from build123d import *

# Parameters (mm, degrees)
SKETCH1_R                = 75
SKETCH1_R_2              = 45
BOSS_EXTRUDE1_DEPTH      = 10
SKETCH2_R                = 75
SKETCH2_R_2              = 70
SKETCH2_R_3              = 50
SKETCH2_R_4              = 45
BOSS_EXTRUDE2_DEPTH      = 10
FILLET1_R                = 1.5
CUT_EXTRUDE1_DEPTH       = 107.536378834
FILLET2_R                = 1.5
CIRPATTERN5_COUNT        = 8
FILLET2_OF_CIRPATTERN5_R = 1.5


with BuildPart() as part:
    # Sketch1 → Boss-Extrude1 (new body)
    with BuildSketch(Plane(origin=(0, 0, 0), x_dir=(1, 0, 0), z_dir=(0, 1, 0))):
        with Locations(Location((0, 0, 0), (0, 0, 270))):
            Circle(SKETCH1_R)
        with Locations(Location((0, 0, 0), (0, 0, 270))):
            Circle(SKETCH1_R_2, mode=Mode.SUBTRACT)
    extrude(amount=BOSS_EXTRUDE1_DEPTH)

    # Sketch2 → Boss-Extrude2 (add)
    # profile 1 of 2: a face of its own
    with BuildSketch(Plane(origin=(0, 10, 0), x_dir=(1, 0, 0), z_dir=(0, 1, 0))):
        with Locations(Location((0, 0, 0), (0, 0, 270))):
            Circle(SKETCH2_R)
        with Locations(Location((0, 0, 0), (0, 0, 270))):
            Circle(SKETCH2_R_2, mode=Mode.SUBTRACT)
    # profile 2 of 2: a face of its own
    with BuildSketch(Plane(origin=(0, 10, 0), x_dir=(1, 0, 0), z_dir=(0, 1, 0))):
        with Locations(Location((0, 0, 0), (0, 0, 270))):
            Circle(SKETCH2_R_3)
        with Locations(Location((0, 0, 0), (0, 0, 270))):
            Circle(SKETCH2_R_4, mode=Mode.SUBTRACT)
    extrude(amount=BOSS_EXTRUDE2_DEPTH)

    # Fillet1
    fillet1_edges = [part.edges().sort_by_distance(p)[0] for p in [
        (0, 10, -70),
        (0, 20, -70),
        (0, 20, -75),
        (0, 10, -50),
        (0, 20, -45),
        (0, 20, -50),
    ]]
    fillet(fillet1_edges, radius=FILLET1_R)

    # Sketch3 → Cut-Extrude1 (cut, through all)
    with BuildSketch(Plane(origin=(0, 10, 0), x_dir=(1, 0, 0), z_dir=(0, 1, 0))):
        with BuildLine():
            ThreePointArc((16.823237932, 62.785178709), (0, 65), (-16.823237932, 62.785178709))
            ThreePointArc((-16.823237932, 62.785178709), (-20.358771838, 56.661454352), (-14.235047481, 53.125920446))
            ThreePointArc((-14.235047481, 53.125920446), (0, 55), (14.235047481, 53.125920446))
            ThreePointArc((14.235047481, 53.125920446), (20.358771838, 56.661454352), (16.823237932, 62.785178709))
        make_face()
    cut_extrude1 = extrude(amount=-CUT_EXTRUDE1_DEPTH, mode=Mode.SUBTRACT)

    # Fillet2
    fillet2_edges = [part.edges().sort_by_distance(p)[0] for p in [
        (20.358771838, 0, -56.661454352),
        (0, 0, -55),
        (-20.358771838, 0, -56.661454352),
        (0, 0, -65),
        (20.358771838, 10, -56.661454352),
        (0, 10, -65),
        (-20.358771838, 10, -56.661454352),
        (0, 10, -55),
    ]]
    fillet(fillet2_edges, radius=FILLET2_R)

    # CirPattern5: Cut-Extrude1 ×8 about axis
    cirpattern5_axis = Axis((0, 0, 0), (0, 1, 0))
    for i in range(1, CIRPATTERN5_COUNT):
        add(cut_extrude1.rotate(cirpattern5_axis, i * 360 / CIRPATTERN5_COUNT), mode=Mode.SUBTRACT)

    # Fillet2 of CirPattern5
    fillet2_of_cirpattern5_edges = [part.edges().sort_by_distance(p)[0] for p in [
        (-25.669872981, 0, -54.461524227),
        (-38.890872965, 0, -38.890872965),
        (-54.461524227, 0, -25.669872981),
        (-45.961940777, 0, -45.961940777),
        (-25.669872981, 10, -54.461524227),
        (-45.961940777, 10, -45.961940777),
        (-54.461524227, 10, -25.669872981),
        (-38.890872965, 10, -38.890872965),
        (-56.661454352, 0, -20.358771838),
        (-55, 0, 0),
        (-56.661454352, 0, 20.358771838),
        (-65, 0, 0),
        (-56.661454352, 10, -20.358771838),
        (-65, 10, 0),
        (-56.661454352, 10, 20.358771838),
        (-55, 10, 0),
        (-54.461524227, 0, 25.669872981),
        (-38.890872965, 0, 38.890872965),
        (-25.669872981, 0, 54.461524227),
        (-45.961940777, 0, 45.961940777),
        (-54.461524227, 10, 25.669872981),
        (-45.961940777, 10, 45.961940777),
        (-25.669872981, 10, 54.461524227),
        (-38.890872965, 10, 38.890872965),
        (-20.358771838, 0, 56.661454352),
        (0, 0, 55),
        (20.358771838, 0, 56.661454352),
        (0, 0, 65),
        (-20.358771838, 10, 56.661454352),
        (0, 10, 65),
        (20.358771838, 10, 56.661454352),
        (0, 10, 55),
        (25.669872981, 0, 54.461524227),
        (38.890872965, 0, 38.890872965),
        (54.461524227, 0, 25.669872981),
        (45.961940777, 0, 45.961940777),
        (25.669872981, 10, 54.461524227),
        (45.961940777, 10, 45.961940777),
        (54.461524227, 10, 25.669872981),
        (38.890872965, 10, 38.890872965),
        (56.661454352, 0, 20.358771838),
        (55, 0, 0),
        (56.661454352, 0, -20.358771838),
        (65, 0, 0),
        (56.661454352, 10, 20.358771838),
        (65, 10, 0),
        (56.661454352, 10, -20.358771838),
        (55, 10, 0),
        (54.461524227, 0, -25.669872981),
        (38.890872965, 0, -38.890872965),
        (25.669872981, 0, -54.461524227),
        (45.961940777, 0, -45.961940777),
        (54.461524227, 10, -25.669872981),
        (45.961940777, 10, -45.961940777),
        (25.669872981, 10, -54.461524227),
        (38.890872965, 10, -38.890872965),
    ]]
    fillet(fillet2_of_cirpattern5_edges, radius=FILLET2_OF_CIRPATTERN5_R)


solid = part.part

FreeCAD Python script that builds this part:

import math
import FreeCAD as App
import Part
import Sketcher
Q = App.Units.Quantity


def edges_at(feature, points):
    """Names of the edges that pass closest to the given points."""
    edges = feature.Shape.Edges
    near = lambda p: min(range(len(edges)), key=lambda i: edges[i].distToShape(Part.Vertex(*p))[0])
    return sorted({f"Edge{near(p) + 1}" for p in points})

doc = App.newDocument("Part")
body = doc.addObject("PartDesign::Body", "Body")

# Sketch on XZ plane
sketch1 = body.newObject("Sketcher::SketchObject", "Sketch")
sketch1.AttachmentSupport = (doc.getObject("XZ_Plane"), [""])
sketch1.MapMode = "FlatFace"
sketch1.addGeometry(Part.Circle(App.Vector(0, 0, 0), App.Vector(0, 0, 1), 75), False)
sketch1.addGeometry(Part.Circle(App.Vector(0, 0, 0), App.Vector(0, 0, 1), 45), False)
sketch1.addConstraint(Sketcher.Constraint("Coincident", 0, 3, -1, 1))
sketch1.addConstraint(Sketcher.Constraint("Coincident", 1, 3, -1, 1))
sketch1.addConstraint(Sketcher.Constraint("Diameter", 0, Q("150 mm")))
sketch1.addConstraint(Sketcher.Constraint("Diameter", 1, Q("90 mm")))
pad1 = body.newObject("PartDesign::Pad", "Pad")
pad1.Profile = sketch1
pad1.Length = 10
pad1.Reversed = True

# Sketch on XZ plane
sketch2 = body.newObject("Sketcher::SketchObject", "Sketch001")
sketch2.AttachmentSupport = (doc.getObject("XZ_Plane"), [""])
sketch2.MapMode = "FlatFace"
sketch2.AttachmentOffset = App.Placement(App.Vector(0, 0, -10), App.Rotation())
sketch2.addGeometry(Part.Circle(App.Vector(0, 0, 0), App.Vector(0, 0, 1), 75), False)
sketch2.addGeometry(Part.Circle(App.Vector(0, 0, 0), App.Vector(0, 0, 1), 70), False)
sketch2.addGeometry(Part.Circle(App.Vector(0, 0, 0), App.Vector(0, 0, 1), 50), False)
sketch2.addGeometry(Part.Circle(App.Vector(0, 0, 0), App.Vector(0, 0, 1), 45), False)
sketch2.addConstraint(Sketcher.Constraint("Coincident", 0, 3, -1, 1))
sketch2.addConstraint(Sketcher.Constraint("Coincident", 1, 3, -1, 1))
sketch2.addConstraint(Sketcher.Constraint("Coincident", 2, 3, -1, 1))
sketch2.addConstraint(Sketcher.Constraint("Coincident", 3, 3, -1, 1))
sketch2.addConstraint(Sketcher.Constraint("Diameter", 0, Q("150 mm")))
sketch2.addConstraint(Sketcher.Constraint("Diameter", 1, Q("140 mm")))
sketch2.addConstraint(Sketcher.Constraint("Diameter", 2, Q("100 mm")))
sketch2.addConstraint(Sketcher.Constraint("Diameter", 3, Q("90 mm")))
pad2 = body.newObject("PartDesign::Pad", "Pad001")
pad2.Profile = sketch2
pad2.Length = 10
pad2.Reversed = True
doc.recompute()

fillet = body.newObject("PartDesign::Fillet", "Fillet")
fillet.Base = (pad2, edges_at(pad2, [
    (0, 10, -70),
    (0, 20, -70),
    (0, 20, -75),
    (0, 10, -50),
    (0, 20, -45),
    (0, 20, -50),
]))
fillet.Radius = 1.5

# Sketch on XZ plane
sketch3 = body.newObject("Sketcher::SketchObject", "Sketch002")
sketch3.AttachmentSupport = (doc.getObject("XZ_Plane"), [""])
sketch3.MapMode = "FlatFace"
sketch3.AttachmentOffset = App.Placement(App.Vector(0, 0, -10), App.Rotation())
sketch3.addGeometry(Part.ArcOfCircle(Part.Circle(App.Vector(0, 0, 0), App.Vector(0, 0, 1), 65), math.radians(-105), math.radians(-75)), False)
sketch3.addGeometry(Part.ArcOfCircle(Part.Circle(App.Vector(-16, -58, 0), App.Vector(0, 0, 1), 5), math.radians(75), math.radians(255)), False)
sketch3.addGeometry(Part.ArcOfCircle(Part.Circle(App.Vector(0, 0, 0), App.Vector(0, 0, 1), 55), math.radians(-105), math.radians(-75)), False)
sketch3.addGeometry(Part.ArcOfCircle(Part.Circle(App.Vector(16, -58, 0), App.Vector(0, 0, 1), 5), math.radians(-75), math.radians(105)), False)
sketch3.addConstraint(Sketcher.Constraint("Tangent", 0, 1, 1, 2))
sketch3.addConstraint(Sketcher.Constraint("Tangent", 1, 1, 2, 1))
sketch3.addConstraint(Sketcher.Constraint("Tangent", 2, 2, 3, 2))
sketch3.addConstraint(Sketcher.Constraint("Tangent", 3, 1, 0, 2))
sketch3.addConstraint(Sketcher.Constraint("Coincident", 0, 3, -1, 1))
sketch3.addConstraint(Sketcher.Constraint("Coincident", 2, 3, -1, 1))
sketch3.addConstraint(Sketcher.Constraint("Horizontal", 1, 3, 3, 3))
sketch3.addConstraint(Sketcher.Constraint("Radius", 0, Q("65 mm")))
sketch3.addConstraint(Sketcher.Constraint("Radius", 1, Q("5 mm")))
sketch3.addConstraint(Sketcher.Constraint("DistanceY", 1, 3, -1, 1, Q("57.95555 mm")))
pocket1 = body.newObject("PartDesign::Pocket", "Pocket")
pocket1.Profile = sketch3
pocket1.Type = "ThroughAll"
pocket1.Reversed = True
doc.recompute()

fillet2 = body.newObject("PartDesign::Fillet", "Fillet001")
fillet2.Base = (pocket1, edges_at(pocket1, [
    (20.359, 0, -56.661),
    (0, 0, -55),
    (-20.359, 0, -56.661),
    (0, 0, -65),
    (20.359, 10, -56.661),
    (0, 10, -65),
    (-20.359, 10, -56.661),
    (0, 10, -55),
]))
fillet2.Radius = 1.5
doc.recompute()

polarpattern = body.newObject("PartDesign::PolarPattern", "PolarPattern")
polarpattern.Originals = [pocket1]
polarpattern.Axis = (doc.getObject("Y_Axis"), [""])
polarpattern.Angle = 360
polarpattern.Occurrences = 8
body.Tip = polarpattern
doc.recompute()

fillet3 = body.newObject("PartDesign::Fillet", "Fillet002")
fillet3.Base = (polarpattern, edges_at(polarpattern, [
    (-25.67, 0, -54.462),
    (-38.891, 0, -38.891),
    (-54.462, 0, -25.67),
    (-45.962, 0, -45.962),
    (-25.67, 10, -54.462),
    (-45.962, 10, -45.962),
    (-54.462, 10, -25.67),
    (-38.891, 10, -38.891),
    (-56.661, 0, -20.359),
    (-55, 0, 0),
    (-56.661, 0, 20.359),
    (-65, 0, 0),
    (-56.661, 10, -20.359),
    (-65, 10, 0),
    (-56.661, 10, 20.359),
    (-55, 10, 0),
    (-54.462, 0, 25.67),
    (-38.891, 0, 38.891),
    (-25.67, 0, 54.462),
    (-45.962, 0, 45.962),
    (-54.462, 10, 25.67),
    (-45.962, 10, 45.962),
    (-25.67, 10, 54.462),
    (-38.891, 10, 38.891),
    (-20.359, 0, 56.661),
    (0, 0, 55),
    (20.359, 0, 56.661),
    (0, 0, 65),
    (-20.359, 10, 56.661),
    (0, 10, 65),
    (20.359, 10, 56.661),
    (0, 10, 55),
    (25.67, 0, 54.462),
    (38.891, 0, 38.891),
    (54.462, 0, 25.67),
    (45.962, 0, 45.962),
    (25.67, 10, 54.462),
    (45.962, 10, 45.962),
    (54.462, 10, 25.67),
    (38.891, 10, 38.891),
    (56.661, 0, 20.359),
    (55, 0, 0),
    (56.661, 0, -20.359),
    (65, 0, 0),
    (56.661, 10, 20.359),
    (65, 10, 0),
    (56.661, 10, -20.359),
    (55, 10, 0),
    (54.462, 0, -25.67),
    (38.891, 0, -38.891),
    (25.67, 0, -54.462),
    (45.962, 0, -45.962),
    (54.462, 10, -25.67),
    (45.962, 10, -45.962),
    (25.67, 10, -54.462),
    (38.891, 10, -38.891),
]))
fillet3.Radius = 1.5

doc.recompute()
